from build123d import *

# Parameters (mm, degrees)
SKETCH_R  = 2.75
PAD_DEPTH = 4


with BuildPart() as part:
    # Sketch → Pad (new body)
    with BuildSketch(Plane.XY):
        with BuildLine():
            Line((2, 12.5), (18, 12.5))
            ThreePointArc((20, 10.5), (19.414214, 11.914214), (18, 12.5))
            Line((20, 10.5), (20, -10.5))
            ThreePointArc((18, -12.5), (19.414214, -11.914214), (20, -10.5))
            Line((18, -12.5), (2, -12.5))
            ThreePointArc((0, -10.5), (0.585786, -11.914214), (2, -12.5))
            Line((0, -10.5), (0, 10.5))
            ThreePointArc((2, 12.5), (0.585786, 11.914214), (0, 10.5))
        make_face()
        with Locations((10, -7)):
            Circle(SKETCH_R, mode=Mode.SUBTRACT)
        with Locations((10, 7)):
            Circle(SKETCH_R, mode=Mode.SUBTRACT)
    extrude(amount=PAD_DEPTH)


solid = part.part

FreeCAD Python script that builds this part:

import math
import FreeCAD as App
import Part
import Sketcher
from FreeCAD import Vector
Q = App.Units.Quantity

doc = App.newDocument("Part")
body = doc.addObject("PartDesign::Body", "Body")

# Sketch on XY plane
sketch1 = body.newObject("Sketcher::SketchObject", "Sketch")
sketch1.AttachmentSupport = (doc.getObject("XY_Plane"), [""])
sketch1.MapMode = "FlatFace"
sketch1.addGeometry([
    Part.LineSegment(Vector(18, 12.5, 0), Vector(2, 12.5, 0)),  # 0
    Part.ArcOfCircle(Part.Circle(Vector(1.999999, 10.500001, 0), Vector(0, 0, 1), 1.999999), math.radians(89.999957), math.radians(180.000043)),  # 1
    Part.LineSegment(Vector(0, 10.5, 0), Vector(0, -10.5, 0)),  # 2
    Part.ArcOfCircle(Part.Circle(Vector(1.999999, -10.500001, 0), Vector(0, 0, 1), 1.999999), math.radians(179.999957), math.radians(270.000043)),  # 3
    Part.LineSegment(Vector(2, -12.5, 0), Vector(18, -12.5, 0)),  # 4
    Part.ArcOfCircle(Part.Circle(Vector(18.000001, -10.500001, 0), Vector(0, 0, 1), 1.999999), math.radians(-90.000043), math.radians(0.000043)),  # 5
    Part.LineSegment(Vector(20, -10.5, 0), Vector(20, 10.5, 0)),  # 6
    Part.ArcOfCircle(Part.Circle(Vector(18.000001, 10.500001, 0), Vector(0, 0, 1), 1.999999), math.radians(-0.000043), math.radians(90.000043)),  # 7
    Part.Circle(Vector(10, -7, 0), Vector(0, 0, 1), 2.75),  # 8
    Part.Circle(Vector(10, 7, 0), Vector(0, 0, 1), 2.75),  # 9
], False)
sketch1.addConstraint([
    Sketcher.Constraint("Tangent", 0, 2, 1, 1),
    Sketcher.Constraint("Tangent", 1, 2, 2, 1),
    Sketcher.Constraint("Tangent", 2, 2, 3, 1),
    Sketcher.Constraint("Tangent", 3, 2, 4, 1),
    Sketcher.Constraint("Tangent", 4, 2, 5, 1),
    Sketcher.Constraint("Tangent", 5, 2, 6, 1),
    Sketcher.Constraint("Tangent", 6, 2, 7, 1),
    Sketcher.Constraint("Tangent", 7, 2, 0, 1),
    Sketcher.Constraint("Horizontal", 0),
    Sketcher.Constraint("Vertical", 2),
    Sketcher.Constraint("Horizontal", 4),
    Sketcher.Constraint("Vertical", 6),
    Sketcher.Constraint("Equal", 1, 3),
    Sketcher.Constraint("Equal", 3, 5),
    Sketcher.Constraint("Equal", 5, 7),
    Sketcher.Constraint("Equal", 8, 9),
    Sketcher.Constraint("Symmetric", 1, 2, 2, 2, -1, 1),
    Sketcher.Constraint("Symmetric", 8, 3, 9, 3, -1),
    Sketcher.Constraint("Radius", 1, Q("1.999999 mm")),
    Sketcher.Constraint("Diameter", 8, Q("5.5 mm")),
    Sketcher.Constraint("DistanceX", 0, 2, 0, 1, Q("16 mm")),
    Sketcher.Constraint("DistanceY", 2, 2, 2, 1, Q("21 mm")),
    Sketcher.Constraint("DistanceX", -1, 1, 8, 3, Q("10 mm")),
    Sketcher.Constraint("DistanceY", 8, 3, -1, 1, Q("7 mm")),
])
pad1 = body.newObject("PartDesign::Pad", "Pad")
pad1.Profile = sketch1
pad1.Length = 4

doc.recompute()
